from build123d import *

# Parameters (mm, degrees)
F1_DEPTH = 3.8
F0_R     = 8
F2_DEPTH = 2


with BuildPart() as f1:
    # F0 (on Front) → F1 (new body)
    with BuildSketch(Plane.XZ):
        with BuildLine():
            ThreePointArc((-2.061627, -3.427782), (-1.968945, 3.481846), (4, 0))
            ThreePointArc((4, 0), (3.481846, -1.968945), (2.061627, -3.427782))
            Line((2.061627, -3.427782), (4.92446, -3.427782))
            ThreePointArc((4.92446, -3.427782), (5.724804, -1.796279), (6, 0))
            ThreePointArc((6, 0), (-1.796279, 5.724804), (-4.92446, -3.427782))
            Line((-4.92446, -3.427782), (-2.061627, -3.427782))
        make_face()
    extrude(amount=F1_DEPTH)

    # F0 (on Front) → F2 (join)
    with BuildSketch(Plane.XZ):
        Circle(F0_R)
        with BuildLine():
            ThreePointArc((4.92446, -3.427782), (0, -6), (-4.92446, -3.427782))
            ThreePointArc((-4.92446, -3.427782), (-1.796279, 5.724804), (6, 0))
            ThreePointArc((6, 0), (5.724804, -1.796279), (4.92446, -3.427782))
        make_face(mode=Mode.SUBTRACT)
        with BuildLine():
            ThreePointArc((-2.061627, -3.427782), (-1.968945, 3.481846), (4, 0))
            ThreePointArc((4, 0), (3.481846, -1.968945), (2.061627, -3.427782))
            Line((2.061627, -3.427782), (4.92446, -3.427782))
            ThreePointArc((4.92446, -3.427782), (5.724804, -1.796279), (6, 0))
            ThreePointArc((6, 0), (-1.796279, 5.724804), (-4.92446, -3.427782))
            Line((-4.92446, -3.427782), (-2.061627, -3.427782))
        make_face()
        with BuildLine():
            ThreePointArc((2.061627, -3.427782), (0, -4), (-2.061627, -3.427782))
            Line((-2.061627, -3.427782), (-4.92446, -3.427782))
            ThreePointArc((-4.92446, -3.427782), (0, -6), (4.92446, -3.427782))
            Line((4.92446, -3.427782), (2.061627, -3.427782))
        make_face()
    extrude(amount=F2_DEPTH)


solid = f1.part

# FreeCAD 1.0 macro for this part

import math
import FreeCAD as App
import Part
import Sketcher

V = App.Vector
Q = App.Units.Quantity

doc = App.newDocument("Part")
body = doc.addObject("PartDesign::Body", "Body")

# Sketch on XZ plane
sketch1 = body.newObject("Sketcher::SketchObject", "Sketch")
sketch1.AttachmentSupport = (doc.getObject("XZ_Plane"), [""])
sketch1.MapMode = "FlatFace"
sketch1.addGeometry([
    Part.ArcOfCircle(Part.Circle(V(0, 0, 0), V(0, 0, 1), 4), math.radians(0), math.radians(239)),  # 0
    Part.ArcOfCircle(Part.Circle(V(0, 0, 0), V(0, 0, 1), 4), math.radians(-59), math.radians(0)),  # 1
    Part.LineSegment(V(2.1, -3.4, 0), V(4.9, -3.4, 0)),  # 2
    Part.ArcOfCircle(Part.Circle(V(0, 0, 0), V(0, 0, 1), 6), math.radians(-35), math.radians(0)),  # 3
    Part.ArcOfCircle(Part.Circle(V(0, 0, 0), V(0, 0, 1), 6), math.radians(0), math.radians(215)),  # 4
    Part.LineSegment(V(-4.9, -3.4, 0), V(-2.1, -3.4, 0)),  # 5
], False)
sketch1.addConstraint([
    Sketcher.Constraint("Tangent", 0, 1, 1, 2),
    Sketcher.Constraint("Coincident", 1, 1, 2, 1),
    Sketcher.Constraint("Coincident", 2, 2, 3, 1),
    Sketcher.Constraint("Tangent", 3, 2, 4, 1),
    Sketcher.Constraint("Coincident", 4, 2, 5, 1),
    Sketcher.Constraint("Coincident", 5, 2, 0, 2),
    Sketcher.Constraint("Horizontal", 2),
    Sketcher.Constraint("Horizontal", 5),
    Sketcher.Constraint("Coincident", 0, 3, -1, 1),
    Sketcher.Constraint("Coincident", 3, 3, -1, 1),
    Sketcher.Constraint("Equal", 0, 1),
    Sketcher.Constraint("Symmetric", 2, 2, 4, 2, -2),
    Sketcher.Constraint("PointOnObject", 0, 1, -1),
    Sketcher.Constraint("PointOnObject", 3, 2, -1),
    Sketcher.Constraint("Radius", 0, Q("4 mm")),
    Sketcher.Constraint("Radius", 4, Q("6 mm")),
    Sketcher.Constraint("DistanceX", 2, 1, 2, 2, Q("2.862833 mm")),
])
pad1 = body.newObject("PartDesign::Pad", "Pad")
pad1.Profile = sketch1
pad1.Length = 3.8

# Sketch on XZ plane
sketch2 = body.newObject("Sketcher::SketchObject", "Sketch001")
sketch2.AttachmentSupport = (doc.getObject("XZ_Plane"), [""])
sketch2.MapMode = "FlatFace"
sketch2.addGeometry([
    Part.Circle(V(0, 0, 0), V(0, 0, 1), 8),
    Part.ArcOfCircle(Part.Circle(V(0, 0, 0), V(0, 0, 1), 4), math.radians(0), math.radians(239)),
    Part.ArcOfCircle(Part.Circle(V(0, 0, 0), V(0, 0, 1), 4), math.radians(-59), math.radians(0)),
    Part.ArcOfCircle(Part.Circle(V(0, 0, 0), V(0, 0, 1), 4), math.radians(-121), math.radians(-59)),
], False)
sketch2.addConstraint([
    Sketcher.Constraint("Tangent", 1, 1, 2, 2),
    Sketcher.Constraint("Tangent", 2, 1, 3, 2),
    Sketcher.Constraint("Tangent", 3, 1, 1, 2),
    Sketcher.Constraint("Coincident", 0, 3, -1, 1),
    Sketcher.Constraint("Coincident", 1, 3, -1, 1),
    Sketcher.Constraint("PointOnObject", 1, 1, -1),
    Sketcher.Constraint("Horizontal", 2, 1, 3, 1),
    Sketcher.Constraint("Diameter", 0, Q("16 mm")),
    Sketcher.Constraint("Radius", 1, Q("4 mm")),
    Sketcher.Constraint("DistanceY", 2, 1, -1, 1, Q("3.427782 mm")),
])
pad2 = body.newObject("PartDesign::Pad", "Pad001")
pad2.Profile = sketch2
pad2.Length = 2

doc.recompute()
